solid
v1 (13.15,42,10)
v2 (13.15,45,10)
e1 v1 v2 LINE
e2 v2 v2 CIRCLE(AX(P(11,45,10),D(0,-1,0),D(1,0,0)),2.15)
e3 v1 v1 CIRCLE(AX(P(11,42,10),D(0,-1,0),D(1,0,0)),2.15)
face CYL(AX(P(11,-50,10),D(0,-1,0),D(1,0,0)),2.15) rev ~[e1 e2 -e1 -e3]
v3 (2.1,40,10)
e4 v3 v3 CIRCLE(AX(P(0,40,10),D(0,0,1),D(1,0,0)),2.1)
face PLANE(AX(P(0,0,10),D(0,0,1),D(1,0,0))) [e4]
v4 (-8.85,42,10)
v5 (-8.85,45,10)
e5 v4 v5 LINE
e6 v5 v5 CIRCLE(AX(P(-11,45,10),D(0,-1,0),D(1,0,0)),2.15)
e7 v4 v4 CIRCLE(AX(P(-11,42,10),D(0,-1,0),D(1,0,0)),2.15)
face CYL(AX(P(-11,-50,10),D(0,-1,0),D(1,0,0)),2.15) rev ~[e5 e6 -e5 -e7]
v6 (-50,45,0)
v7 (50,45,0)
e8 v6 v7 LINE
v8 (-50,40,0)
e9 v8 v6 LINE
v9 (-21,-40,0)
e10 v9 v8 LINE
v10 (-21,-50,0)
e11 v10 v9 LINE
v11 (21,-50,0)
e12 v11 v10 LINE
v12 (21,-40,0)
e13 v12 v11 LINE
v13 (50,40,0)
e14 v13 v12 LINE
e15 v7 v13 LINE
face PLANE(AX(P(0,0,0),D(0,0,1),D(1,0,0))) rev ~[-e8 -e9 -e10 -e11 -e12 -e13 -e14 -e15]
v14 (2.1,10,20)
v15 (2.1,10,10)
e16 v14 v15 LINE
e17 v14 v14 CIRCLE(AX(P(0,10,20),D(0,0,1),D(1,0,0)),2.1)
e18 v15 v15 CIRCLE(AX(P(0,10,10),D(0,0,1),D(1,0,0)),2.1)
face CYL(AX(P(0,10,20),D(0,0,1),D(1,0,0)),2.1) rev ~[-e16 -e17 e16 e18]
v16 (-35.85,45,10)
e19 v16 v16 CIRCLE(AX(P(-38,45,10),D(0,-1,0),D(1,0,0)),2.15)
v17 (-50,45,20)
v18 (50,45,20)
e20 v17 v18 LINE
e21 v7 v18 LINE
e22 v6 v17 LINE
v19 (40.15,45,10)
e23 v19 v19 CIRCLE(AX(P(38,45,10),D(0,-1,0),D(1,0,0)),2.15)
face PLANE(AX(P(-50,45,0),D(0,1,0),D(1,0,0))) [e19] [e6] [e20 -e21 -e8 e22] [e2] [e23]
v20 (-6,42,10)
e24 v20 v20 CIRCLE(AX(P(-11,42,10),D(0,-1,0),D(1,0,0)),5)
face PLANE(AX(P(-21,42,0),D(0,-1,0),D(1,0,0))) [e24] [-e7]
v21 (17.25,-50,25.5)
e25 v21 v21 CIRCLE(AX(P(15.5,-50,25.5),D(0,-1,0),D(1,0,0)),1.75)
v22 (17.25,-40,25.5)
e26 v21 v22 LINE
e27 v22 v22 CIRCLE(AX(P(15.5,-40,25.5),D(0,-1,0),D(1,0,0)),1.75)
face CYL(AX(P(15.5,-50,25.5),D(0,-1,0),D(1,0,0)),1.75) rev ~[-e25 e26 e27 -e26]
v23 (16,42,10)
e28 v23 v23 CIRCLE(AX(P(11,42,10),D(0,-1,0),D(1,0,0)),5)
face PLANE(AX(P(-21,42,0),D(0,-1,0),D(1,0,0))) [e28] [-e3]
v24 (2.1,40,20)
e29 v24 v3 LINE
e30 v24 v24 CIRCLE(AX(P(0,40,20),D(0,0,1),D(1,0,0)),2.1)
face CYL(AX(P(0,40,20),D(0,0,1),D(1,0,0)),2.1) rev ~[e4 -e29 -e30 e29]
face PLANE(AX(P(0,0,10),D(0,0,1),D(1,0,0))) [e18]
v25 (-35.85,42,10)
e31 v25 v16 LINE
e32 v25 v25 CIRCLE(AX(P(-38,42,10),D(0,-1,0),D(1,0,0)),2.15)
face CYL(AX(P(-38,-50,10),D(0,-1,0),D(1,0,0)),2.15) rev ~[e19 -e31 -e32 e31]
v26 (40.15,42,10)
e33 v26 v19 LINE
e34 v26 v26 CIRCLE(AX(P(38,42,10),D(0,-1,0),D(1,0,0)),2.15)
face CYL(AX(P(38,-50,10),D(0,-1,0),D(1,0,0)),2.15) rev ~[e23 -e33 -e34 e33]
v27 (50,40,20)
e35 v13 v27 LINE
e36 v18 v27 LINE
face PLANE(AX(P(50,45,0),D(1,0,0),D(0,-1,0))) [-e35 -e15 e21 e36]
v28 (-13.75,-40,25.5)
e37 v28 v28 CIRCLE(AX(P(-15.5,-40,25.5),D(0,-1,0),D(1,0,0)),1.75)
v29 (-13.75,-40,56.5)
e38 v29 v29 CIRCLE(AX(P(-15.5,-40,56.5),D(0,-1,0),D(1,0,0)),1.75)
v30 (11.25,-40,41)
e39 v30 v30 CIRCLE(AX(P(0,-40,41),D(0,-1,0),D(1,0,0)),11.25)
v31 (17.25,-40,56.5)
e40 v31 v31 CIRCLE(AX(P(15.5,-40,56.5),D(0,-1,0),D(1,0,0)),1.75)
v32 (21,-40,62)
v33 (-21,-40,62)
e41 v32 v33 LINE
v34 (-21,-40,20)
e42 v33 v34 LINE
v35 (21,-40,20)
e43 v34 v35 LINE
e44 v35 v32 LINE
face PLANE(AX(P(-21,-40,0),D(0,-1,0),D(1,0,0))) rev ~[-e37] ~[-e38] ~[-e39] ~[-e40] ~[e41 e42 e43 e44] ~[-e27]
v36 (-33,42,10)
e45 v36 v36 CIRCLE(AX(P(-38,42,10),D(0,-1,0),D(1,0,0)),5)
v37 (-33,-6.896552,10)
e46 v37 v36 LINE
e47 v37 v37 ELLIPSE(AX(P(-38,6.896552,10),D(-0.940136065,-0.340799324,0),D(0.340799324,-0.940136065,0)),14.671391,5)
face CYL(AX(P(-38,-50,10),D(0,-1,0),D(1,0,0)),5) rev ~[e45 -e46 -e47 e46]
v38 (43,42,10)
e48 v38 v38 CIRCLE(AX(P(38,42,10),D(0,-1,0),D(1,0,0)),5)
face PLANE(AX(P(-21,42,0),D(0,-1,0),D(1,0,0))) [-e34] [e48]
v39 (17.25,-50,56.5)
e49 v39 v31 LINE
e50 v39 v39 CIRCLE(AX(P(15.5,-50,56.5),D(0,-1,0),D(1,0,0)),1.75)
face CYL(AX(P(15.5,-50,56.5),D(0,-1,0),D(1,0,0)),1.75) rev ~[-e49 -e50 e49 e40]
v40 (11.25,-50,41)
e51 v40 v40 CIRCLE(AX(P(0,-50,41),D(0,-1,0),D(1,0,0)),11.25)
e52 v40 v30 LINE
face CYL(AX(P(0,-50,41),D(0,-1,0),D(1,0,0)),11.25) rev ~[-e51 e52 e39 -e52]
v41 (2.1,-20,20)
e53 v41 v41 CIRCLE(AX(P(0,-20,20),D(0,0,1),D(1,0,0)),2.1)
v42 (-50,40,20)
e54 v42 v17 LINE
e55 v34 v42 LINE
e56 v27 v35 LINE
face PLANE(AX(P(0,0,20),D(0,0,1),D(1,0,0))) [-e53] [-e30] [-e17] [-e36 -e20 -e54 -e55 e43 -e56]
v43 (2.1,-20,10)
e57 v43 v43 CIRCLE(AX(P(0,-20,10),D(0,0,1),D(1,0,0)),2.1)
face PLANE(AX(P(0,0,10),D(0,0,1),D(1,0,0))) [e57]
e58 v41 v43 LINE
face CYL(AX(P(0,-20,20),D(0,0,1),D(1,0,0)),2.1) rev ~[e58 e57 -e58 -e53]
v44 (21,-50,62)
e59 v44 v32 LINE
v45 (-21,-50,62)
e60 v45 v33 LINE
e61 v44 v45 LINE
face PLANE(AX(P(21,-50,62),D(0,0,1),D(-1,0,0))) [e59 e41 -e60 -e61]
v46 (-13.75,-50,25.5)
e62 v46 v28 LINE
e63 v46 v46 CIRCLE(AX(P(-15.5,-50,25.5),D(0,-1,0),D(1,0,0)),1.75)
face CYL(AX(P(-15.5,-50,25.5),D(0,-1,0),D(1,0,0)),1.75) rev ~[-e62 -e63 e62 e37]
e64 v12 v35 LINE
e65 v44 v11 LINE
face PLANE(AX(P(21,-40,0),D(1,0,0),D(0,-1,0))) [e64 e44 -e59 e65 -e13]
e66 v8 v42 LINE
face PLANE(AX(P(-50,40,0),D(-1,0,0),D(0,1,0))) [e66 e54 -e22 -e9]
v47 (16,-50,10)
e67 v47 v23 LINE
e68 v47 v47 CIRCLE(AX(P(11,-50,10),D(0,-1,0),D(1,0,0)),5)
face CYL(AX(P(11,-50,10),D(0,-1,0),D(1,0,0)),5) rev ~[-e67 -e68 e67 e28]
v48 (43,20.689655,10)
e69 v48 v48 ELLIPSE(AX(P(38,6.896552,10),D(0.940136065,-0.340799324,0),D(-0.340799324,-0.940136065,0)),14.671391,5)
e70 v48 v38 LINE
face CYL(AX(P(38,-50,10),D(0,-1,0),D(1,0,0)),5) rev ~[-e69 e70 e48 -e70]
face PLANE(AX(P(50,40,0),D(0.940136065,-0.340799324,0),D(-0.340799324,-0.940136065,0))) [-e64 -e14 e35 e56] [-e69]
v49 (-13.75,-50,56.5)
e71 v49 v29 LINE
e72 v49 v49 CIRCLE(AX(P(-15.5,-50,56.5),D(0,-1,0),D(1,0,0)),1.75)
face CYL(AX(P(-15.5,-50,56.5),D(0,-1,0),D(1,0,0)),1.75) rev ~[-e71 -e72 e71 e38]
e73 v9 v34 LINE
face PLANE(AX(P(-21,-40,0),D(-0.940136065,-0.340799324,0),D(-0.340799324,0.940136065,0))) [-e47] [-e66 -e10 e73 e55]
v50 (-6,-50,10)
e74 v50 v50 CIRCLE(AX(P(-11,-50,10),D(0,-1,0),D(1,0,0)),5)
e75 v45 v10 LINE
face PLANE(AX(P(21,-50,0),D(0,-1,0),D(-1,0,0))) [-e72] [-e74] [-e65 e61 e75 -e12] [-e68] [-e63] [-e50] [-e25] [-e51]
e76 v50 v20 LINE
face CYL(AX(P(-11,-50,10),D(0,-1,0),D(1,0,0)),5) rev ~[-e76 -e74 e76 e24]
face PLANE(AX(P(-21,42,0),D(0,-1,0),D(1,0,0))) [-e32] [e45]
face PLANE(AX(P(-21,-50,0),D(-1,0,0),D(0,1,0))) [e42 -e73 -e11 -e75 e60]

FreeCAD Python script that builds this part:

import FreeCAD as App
import Part
import Sketcher
Q = App.Units.Quantity


def add_polygon(sketch, points):
    """Adds a closed chain of lines whose ends are joined by coincident constraints."""
    first, n = sketch.GeometryCount, len(points)
    for a, b in zip(points, points[1:] + points[:1]):
        sketch.addGeometry(Part.LineSegment(App.Vector(*a, 0), App.Vector(*b, 0)), False)
    for i in range(n):
        sketch.addConstraint(Sketcher.Constraint("Coincident", first + i, 2, first + (i + 1) % n, 1))

doc = App.newDocument("Part")
body = doc.addObject("PartDesign::Body", "Body")

# Sketch on XY plane
sketch1 = doc.addObject("Sketcher::SketchObject", "Sketch")
body.addObject(sketch1)
sketch1.AttachmentSupport = (doc.XY_Plane, [""])
sketch1.MapMode = "FlatFace"
add_polygon(sketch1, [(50, 45), (-50, 45), (-50, 40), (-21, -40), (-21, -50), (21, -50), (21, -40), (50, 40)])  # lines 0-7
sketch1.addConstraint([
    Sketcher.Constraint("Horizontal", 0),
    Sketcher.Constraint("Vertical", 1),
    Sketcher.Constraint("Vertical", 3),
    Sketcher.Constraint("Horizontal", 4),
    Sketcher.Constraint("Vertical", 5),
    Sketcher.Constraint("Vertical", 7),
    Sketcher.Constraint("Symmetric", 2, 2, 5, 2, -2),
    Sketcher.Constraint("Symmetric", 1, 2, 6, 2, -2),
    Sketcher.Constraint("DistanceX", 0, 2, 0, 1, Q("100 mm")),
    Sketcher.Constraint("DistanceX", 4, 1, 4, 2, Q("42 mm")),
    Sketcher.Constraint("DistanceY", 1, 2, 1, 1, Q("5 mm")),
    Sketcher.Constraint("DistanceY", 3, 2, 3, 1, Q("10 mm")),
    Sketcher.Constraint("DistanceY", 3, 2, 0, 2, Q("95 mm")),
    Sketcher.Constraint("DistanceY", -1, 1, 0, 2, Q("45 mm")),
])
pad1 = doc.addObject("PartDesign::Pad", "Pad")
body.addObject(pad1)
pad1.Profile = sketch1
pad1.Length = 20

# Sketch on XZ plane
sketch2 = doc.addObject("Sketcher::SketchObject", "Sketch001")
body.addObject(sketch2)
sketch2.AttachmentSupport = (doc.XZ_Plane, [""])
sketch2.MapMode = "FlatFace"
sketch2.AttachmentOffset = App.Placement(App.Vector(0, 0, 50), App.Rotation())
add_polygon(sketch2, [(-21, 62), (-21, 20), (21, 20), (21, 62)])  # lines 0-3
sketch2.addGeometry(Part.Circle(App.Vector(-15.5, 25.5, 0), App.Vector(0, 0, 1), 1.75), False)  # 4
sketch2.addGeometry(Part.Circle(App.Vector(15.5, 25.5, 0), App.Vector(0, 0, 1), 1.75), False)  # 5
sketch2.addGeometry(Part.Circle(App.Vector(-15.5, 56.5, 0), App.Vector(0, 0, 1), 1.75), False)  # 6
sketch2.addGeometry(Part.Circle(App.Vector(0, 41, 0), App.Vector(0, 0, 1), 11.25), False)  # 7
sketch2.addGeometry(Part.Circle(App.Vector(15.5, 56.5, 0), App.Vector(0, 0, 1), 1.75), False)  # 8
sketch2.addConstraint([
    Sketcher.Constraint("Vertical", 0),
    Sketcher.Constraint("Horizontal", 1),
    Sketcher.Constraint("Vertical", 2),
    Sketcher.Constraint("Horizontal", 3),
    Sketcher.Constraint("Equal", 4, 5),
    Sketcher.Constraint("Equal", 5, 6),
    Sketcher.Constraint("Equal", 6, 8),
    Sketcher.Constraint("Symmetric", 4, 3, 5, 3, -2),
    Sketcher.Constraint("Symmetric", 6, 3, 8, 3, -2),
    Sketcher.Constraint("PointOnObject", 7, 3, -2),
    Sketcher.Constraint("Vertical", 4, 3, 6, 3),
    Sketcher.Constraint("Equal", 3, 0),
    Sketcher.Constraint("Diameter", 4, Q("3.5 mm")),
    Sketcher.Constraint("Diameter", 7, Q("22.5 mm")),
    Sketcher.Constraint("DistanceX", 4, 3, 5, 3, Q("31 mm")),
    Sketcher.Constraint("DistanceY", 4, 3, 6, 3, Q("31 mm")),
    Sketcher.Constraint("DistanceY", 4, 3, 7, 3, Q("15.5 mm")),
    Sketcher.Constraint("DistanceX", 1, 1, 1, 2, Q("42 mm")),
    Sketcher.Constraint("DistanceY", -1, 1, 7, 3, Q("41 mm")),
    Sketcher.Constraint("DistanceX", 0, 2, -1, 1, Q("21 mm")),
    Sketcher.Constraint("DistanceY", -1, 1, 0, 2, Q("20 mm")),
])
pad2 = doc.addObject("PartDesign::Pad", "Pad001")
body.addObject(pad2)
pad2.Profile = sketch2
pad2.Length = 10
pad2.Reversed = True

# Sketch on XZ plane
sketch3 = doc.addObject("Sketcher::SketchObject", "Sketch002")
body.addObject(sketch3)
sketch3.AttachmentSupport = (doc.XZ_Plane, [""])
sketch3.MapMode = "FlatFace"
sketch3.AttachmentOffset = App.Placement(App.Vector(0, 0, 50), App.Rotation())
sketch3.addGeometry([
    Part.Circle(App.Vector(-38, 10, 0), App.Vector(0, 0, 1), 5),
    Part.Circle(App.Vector(38, 10, 0), App.Vector(0, 0, 1), 5),
    Part.Circle(App.Vector(-11, 10, 0), App.Vector(0, 0, 1), 5),
    Part.Circle(App.Vector(11, 10, 0), App.Vector(0, 0, 1), 5),
], False)
sketch3.addConstraint([
    Sketcher.Constraint("Equal", 0, 1),
    Sketcher.Constraint("Equal", 1, 2),
    Sketcher.Constraint("Equal", 2, 3),
    Sketcher.Constraint("Symmetric", 0, 3, 1, 3, -2),
    Sketcher.Constraint("Symmetric", 2, 3, 3, 3, -2),
    Sketcher.Constraint("Horizontal", 1, 3, 2, 3),
    Sketcher.Constraint("Diameter", 0, Q("10 mm")),
    Sketcher.Constraint("DistanceY", -1, 1, 0, 3, Q("10 mm")),
    Sketcher.Constraint("DistanceX", 0, 3, -1, 1, Q("38 mm")),
    Sketcher.Constraint("DistanceX", 2, 3, -1, 1, Q("11 mm")),
])
pocket1 = doc.addObject("PartDesign::Pocket", "Pocket")
body.addObject(pocket1)
pocket1.Profile = sketch3
pocket1.Length = 92

# Sketch on XZ plane
sketch4 = doc.addObject("Sketcher::SketchObject", "Sketch003")
body.addObject(sketch4)
sketch4.AttachmentSupport = (doc.XZ_Plane, [""])
sketch4.MapMode = "FlatFace"
sketch4.AttachmentOffset = App.Placement(App.Vector(0, 0, 50), App.Rotation())
sketch4.addGeometry([
    Part.Circle(App.Vector(-38, 10, 0), App.Vector(0, 0, 1), 2.15),
    Part.Circle(App.Vector(38, 10, 0), App.Vector(0, 0, 1), 2.15),
    Part.Circle(App.Vector(11, 10, 0), App.Vector(0, 0, 1), 2.15),
    Part.Circle(App.Vector(-11, 10, 0), App.Vector(0, 0, 1), 2.15),
], False)
sketch4.addConstraint([
    Sketcher.Constraint("Equal", 0, 1),
    Sketcher.Constraint("Equal", 1, 2),
    Sketcher.Constraint("Equal", 2, 3),
    Sketcher.Constraint("Symmetric", 0, 3, 1, 3, -2),
    Sketcher.Constraint("Symmetric", 2, 3, 3, 3, -2),
    Sketcher.Constraint("Horizontal", 1, 3, 2, 3),
    Sketcher.Constraint("Diameter", 0, Q("4.3 mm")),
    Sketcher.Constraint("DistanceY", -1, 1, 0, 3, Q("10 mm")),
    Sketcher.Constraint("DistanceX", 0, 3, -1, 1, Q("38 mm")),
    Sketcher.Constraint("DistanceX", -1, 1, 2, 3, Q("11 mm")),
])
pocket2 = doc.addObject("PartDesign::Pocket", "Pocket001")
body.addObject(pocket2)
pocket2.Profile = sketch4
pocket2.Type = "ThroughAll"

# Sketch on XY plane
sketch5 = doc.addObject("Sketcher::SketchObject", "Sketch004")
body.addObject(sketch5)
sketch5.AttachmentSupport = (doc.XY_Plane, [""])
sketch5.MapMode = "FlatFace"
sketch5.AttachmentOffset = App.Placement(App.Vector(0, 0, 20), App.Rotation())
sketch5.addGeometry([
    Part.Circle(App.Vector(0, 40, 0), App.Vector(0, 0, 1), 2.1),
    Part.Circle(App.Vector(0, 10, 0), App.Vector(0, 0, 1), 2.1),
    Part.Circle(App.Vector(0, -20, 0), App.Vector(0, 0, 1), 2.1),
], False)
sketch5.addConstraint([
    Sketcher.Constraint("Equal", 0, 1),
    Sketcher.Constraint("Equal", 1, 2),
    Sketcher.Constraint("PointOnObject", 0, 3, -2),
    Sketcher.Constraint("PointOnObject", 1, 3, -2),
    Sketcher.Constraint("PointOnObject", 2, 3, -2),
    Sketcher.Constraint("Diameter", 0, Q("4.2 mm")),
    Sketcher.Constraint("DistanceY", 1, 3, 0, 3, Q("30 mm")),
    Sketcher.Constraint("DistanceY", 2, 3, 1, 3, Q("30 mm")),
    Sketcher.Constraint("DistanceY", -1, 1, 0, 3, Q("40 mm")),
])
pocket3 = doc.addObject("PartDesign::Pocket", "Pocket002")
body.addObject(pocket3)
pocket3.Profile = sketch5
pocket3.Length = 10

doc.recompute()
